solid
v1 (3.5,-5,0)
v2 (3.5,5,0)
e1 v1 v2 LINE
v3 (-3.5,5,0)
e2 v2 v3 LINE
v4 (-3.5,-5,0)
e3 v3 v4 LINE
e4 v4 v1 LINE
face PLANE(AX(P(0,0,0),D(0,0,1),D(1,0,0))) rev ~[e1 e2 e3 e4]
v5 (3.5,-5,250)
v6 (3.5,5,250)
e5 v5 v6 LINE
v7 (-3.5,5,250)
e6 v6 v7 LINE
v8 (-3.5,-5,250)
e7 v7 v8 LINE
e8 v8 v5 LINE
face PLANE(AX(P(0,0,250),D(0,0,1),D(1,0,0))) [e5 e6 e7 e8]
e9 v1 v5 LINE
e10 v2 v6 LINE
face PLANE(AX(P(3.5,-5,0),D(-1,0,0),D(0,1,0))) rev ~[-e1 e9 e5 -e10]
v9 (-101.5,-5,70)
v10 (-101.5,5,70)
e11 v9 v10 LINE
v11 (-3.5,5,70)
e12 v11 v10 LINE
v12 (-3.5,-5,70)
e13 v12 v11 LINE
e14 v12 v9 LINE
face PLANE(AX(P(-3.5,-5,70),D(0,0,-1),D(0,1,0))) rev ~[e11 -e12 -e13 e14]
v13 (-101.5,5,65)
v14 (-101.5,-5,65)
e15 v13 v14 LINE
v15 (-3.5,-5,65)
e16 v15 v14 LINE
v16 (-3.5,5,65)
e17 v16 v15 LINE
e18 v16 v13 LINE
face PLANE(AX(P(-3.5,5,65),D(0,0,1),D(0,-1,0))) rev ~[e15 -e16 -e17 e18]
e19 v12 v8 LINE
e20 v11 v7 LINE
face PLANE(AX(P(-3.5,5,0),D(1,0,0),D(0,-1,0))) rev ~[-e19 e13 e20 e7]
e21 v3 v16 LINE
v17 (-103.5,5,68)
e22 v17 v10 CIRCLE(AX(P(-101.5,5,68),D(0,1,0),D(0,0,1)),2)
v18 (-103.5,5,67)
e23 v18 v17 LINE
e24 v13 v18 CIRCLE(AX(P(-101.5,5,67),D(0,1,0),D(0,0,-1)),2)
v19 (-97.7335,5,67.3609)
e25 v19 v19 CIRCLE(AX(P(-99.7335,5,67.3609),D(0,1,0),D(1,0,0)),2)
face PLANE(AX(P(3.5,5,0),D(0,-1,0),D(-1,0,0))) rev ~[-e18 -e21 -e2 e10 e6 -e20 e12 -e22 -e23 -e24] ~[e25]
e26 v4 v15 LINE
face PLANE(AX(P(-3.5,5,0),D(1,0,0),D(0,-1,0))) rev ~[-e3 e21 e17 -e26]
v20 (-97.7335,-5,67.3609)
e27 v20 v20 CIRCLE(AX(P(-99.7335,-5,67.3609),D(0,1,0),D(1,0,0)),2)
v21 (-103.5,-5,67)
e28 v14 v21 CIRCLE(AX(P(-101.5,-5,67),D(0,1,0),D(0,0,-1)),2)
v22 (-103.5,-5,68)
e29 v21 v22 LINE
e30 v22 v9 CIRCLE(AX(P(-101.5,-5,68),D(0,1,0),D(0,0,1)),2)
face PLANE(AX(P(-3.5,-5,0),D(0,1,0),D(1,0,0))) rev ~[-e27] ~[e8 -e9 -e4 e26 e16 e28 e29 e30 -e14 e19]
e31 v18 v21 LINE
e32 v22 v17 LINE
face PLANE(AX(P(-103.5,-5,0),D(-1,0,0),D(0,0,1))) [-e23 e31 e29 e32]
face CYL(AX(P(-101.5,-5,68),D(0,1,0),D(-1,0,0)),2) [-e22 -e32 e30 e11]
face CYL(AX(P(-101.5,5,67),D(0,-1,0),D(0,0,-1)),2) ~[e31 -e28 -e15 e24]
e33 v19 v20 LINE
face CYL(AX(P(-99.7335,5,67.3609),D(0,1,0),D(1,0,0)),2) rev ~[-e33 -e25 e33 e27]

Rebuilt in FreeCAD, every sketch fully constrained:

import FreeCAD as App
import Part
import Sketcher
from FreeCAD import Vector


def edges_at(feature, points):
    """Names of the edges that pass closest to the given points."""
    edges = feature.Shape.Edges
    near = lambda p: min(range(len(edges)), key=lambda i: edges[i].distToShape(Part.Vertex(*p))[0])
    return sorted({f"Edge{near(p) + 1}" for p in points})


def add_polygon(sketch, points):
    """Adds a closed chain of lines whose ends are joined by coincident constraints."""
    first, n = sketch.GeometryCount, len(points)
    for a, b in zip(points, points[1:] + points[:1]):
        sketch.addGeometry(Part.LineSegment(App.Vector(*a, 0), App.Vector(*b, 0)), False)
    for i in range(n):
        sketch.addConstraint(Sketcher.Constraint("Coincident", first + i, 2, first + (i + 1) % n, 1))

doc = App.newDocument("Part")
body = doc.addObject("PartDesign::Body", "Body")

sketch1 = body.newObject("Sketcher::SketchObject", "Sketch")
sketch1.AttachmentSupport = (doc.getObject("XY_Plane"), [""])
sketch1.MapMode = "FlatFace"
add_polygon(sketch1, [(-4, 5), (-4, -5), (4, -5), (4, 5)])
sketch1.addConstraint(Sketcher.Constraint("Vertical", 0))
sketch1.addConstraint(Sketcher.Constraint("Horizontal", 1))
sketch1.addConstraint(Sketcher.Constraint("Vertical", 2))
sketch1.addConstraint(Sketcher.Constraint("Horizontal", 3))
sketch1.addConstraint(Sketcher.Constraint("Symmetric", 0, 2, 2, 2, -1, 1))
sketch1.addConstraint(Sketcher.Constraint("DistanceX", 1, 1, 1, 2, 7.0))
sketch1.addConstraint(Sketcher.Constraint("DistanceY", 0, 2, 0, 1, 10.0))
pad1 = body.newObject("PartDesign::Pad", "Pad")
pad1.Profile = sketch1
pad1.Length = 250

sketch2 = body.newObject("Sketcher::SketchObject", "Sketch001")
sketch2.AttachmentSupport = (doc.getObject("YZ_Plane"), [""])
sketch2.MapMode = "FlatFace"
sketch2.AttachmentOffset = App.Placement(Vector(0, 0, -3.5), App.Rotation())
add_polygon(sketch2, [(5, 65), (-5, 65), (-5, 70), (5, 70)])
sketch2.addConstraint(Sketcher.Constraint("Horizontal", 0))
sketch2.addConstraint(Sketcher.Constraint("Vertical", 1))
sketch2.addConstraint(Sketcher.Constraint("Horizontal", 2))
sketch2.addConstraint(Sketcher.Constraint("Vertical", 3))
sketch2.addConstraint(Sketcher.Constraint("DistanceY", 1, 1, 1, 2, 5.0))
sketch2.addConstraint(Sketcher.Constraint("DistanceX", 0, 2, -1, 1, 5.0))
sketch2.addConstraint(Sketcher.Constraint("DistanceY", -1, 1, 0, 2, 65.0))
sketch2.addConstraint(Sketcher.Constraint("DistanceX", -1, 1, 2, 2, 5.0))
pad2 = body.newObject("PartDesign::Pad", "Pad001")
pad2.Profile = sketch2
pad2.Length = 100
pad2.Reversed = True
doc.recompute()

fillet = body.newObject("PartDesign::Fillet", "Fillet")
fillet.Base = (pad2, edges_at(pad2, [(-103.5, 0, 65), (-103.5, 0, 70)]))
fillet.Radius = 2

sketch3 = body.newObject("Sketcher::SketchObject", "Sketch002")
sketch3.AttachmentSupport = (doc.getObject("XZ_Plane"), [""])
sketch3.MapMode = "FlatFace"
sketch3.AttachmentOffset = App.Placement(Vector(0, 0, -5), App.Rotation())
sketch3.addGeometry(Part.Circle(Vector(-99.7, 67.4, 0), Vector(0, 0, 1), 2), False)
sketch3.addConstraint(Sketcher.Constraint("Diameter", 0, 4.0))
sketch3.addConstraint(Sketcher.Constraint("DistanceY", -1, 1, 0, 3, 67.361))
sketch3.addConstraint(Sketcher.Constraint("DistanceX", 0, 3, -1, 1, 99.7335))
pocket1 = body.newObject("PartDesign::Pocket", "Pocket")
pocket1.Profile = sketch3
pocket1.Type = "ThroughAll"
pocket1.Reversed = True

doc.recompute()
